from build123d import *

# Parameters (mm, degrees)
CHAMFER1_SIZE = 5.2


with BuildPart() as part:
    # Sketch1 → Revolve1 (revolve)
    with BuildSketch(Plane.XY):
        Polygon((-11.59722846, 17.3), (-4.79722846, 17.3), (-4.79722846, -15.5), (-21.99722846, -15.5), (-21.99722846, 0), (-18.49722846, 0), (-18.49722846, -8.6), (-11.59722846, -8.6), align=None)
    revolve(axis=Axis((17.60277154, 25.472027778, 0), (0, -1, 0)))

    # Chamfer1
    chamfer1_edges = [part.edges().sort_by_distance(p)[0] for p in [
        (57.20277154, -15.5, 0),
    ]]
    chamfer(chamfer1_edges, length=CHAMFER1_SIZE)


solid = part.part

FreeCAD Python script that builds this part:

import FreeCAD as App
import Part
import Sketcher
from FreeCAD import Vector


def edges_at(feature, points):
    """Names of the edges that pass closest to the given points."""
    edges = feature.Shape.Edges
    near = lambda p: min(range(len(edges)), key=lambda i: edges[i].distToShape(Part.Vertex(*p))[0])
    return sorted({f"Edge{near(p) + 1}" for p in points})

doc = App.newDocument("Part")
body = doc.addObject("PartDesign::Body", "Body")

sketch1 = body.newObject("Sketcher::SketchObject", "Sketch")
sketch1.AttachmentSupport = (doc.getObject("XY_Plane"), [""])
sketch1.MapMode = "FlatFace"
sketch1.addGeometry([
    Part.LineSegment(Vector(-4.8, 17.3, 0), Vector(-11.6, 17.3, 0)),
    Part.LineSegment(Vector(-11.6, 17.3, 0), Vector(-11.6, -8.6, 0)),
    Part.LineSegment(Vector(-11.6, -8.6, 0), Vector(-18.5, -8.6, 0)),
    Part.LineSegment(Vector(-18.5, -8.6, 0), Vector(-18.5, 0, 0)),
    Part.LineSegment(Vector(-18.5, 0, 0), Vector(-22, 0, 0)),
    Part.LineSegment(Vector(-22, 0, 0), Vector(-22, -15.5, 0)),
    Part.LineSegment(Vector(-22, -15.5, 0), Vector(-4.8, -15.5, 0)),
    Part.LineSegment(Vector(-4.8, -15.5, 0), Vector(-4.8, 17.3, 0)),
], False)
sketch1.addGeometry(Part.LineSegment(Vector(17.6, 17.3, 0), Vector(17.6, -15.5, 0)), True)
sketch1.addConstraint([
    Sketcher.Constraint("Coincident", 0, 2, 1, 1),
    Sketcher.Constraint("Coincident", 1, 2, 2, 1),
    Sketcher.Constraint("Coincident", 2, 2, 3, 1),
    Sketcher.Constraint("Coincident", 3, 2, 4, 1),
    Sketcher.Constraint("Coincident", 4, 2, 5, 1),
    Sketcher.Constraint("Coincident", 5, 2, 6, 1),
    Sketcher.Constraint("Coincident", 6, 2, 7, 1),
    Sketcher.Constraint("Coincident", 7, 2, 0, 1),
    Sketcher.Constraint("Horizontal", 0),
    Sketcher.Constraint("Vertical", 1),
    Sketcher.Constraint("Horizontal", 2),
    Sketcher.Constraint("Vertical", 3),
    Sketcher.Constraint("Horizontal", 4),
    Sketcher.Constraint("Vertical", 5),
    Sketcher.Constraint("Horizontal", 6),
    Sketcher.Constraint("Vertical", 7),
    Sketcher.Constraint("Vertical", 8),
    Sketcher.Constraint("PointOnObject", 3, 2, -1),
    Sketcher.Constraint("Horizontal", 7, 2, 8, 1),
    Sketcher.Constraint("Horizontal", 6, 2, 8, 2),
    Sketcher.Constraint("DistanceX", 0, 2, 0, 1, 6.8),
    Sketcher.Constraint("DistanceX", 2, 2, 2, 1, 6.9),
    Sketcher.Constraint("DistanceX", 4, 2, 4, 1, 3.5),
    Sketcher.Constraint("DistanceY", 1, 2, 1, 1, 25.9),
    Sketcher.Constraint("DistanceY", 3, 1, 3, 2, 8.6),
    Sketcher.Constraint("DistanceY", 5, 2, 5, 1, 15.5),
    Sketcher.Constraint("DistanceX", 7, 2, 8, 1, 22.4),
    Sketcher.Constraint("DistanceX", 0, 2, -1, 1, 11.597228),
])
revolution = body.newObject("PartDesign::Revolution", "Revolution")
revolution.Profile = sketch1
revolution.ReferenceAxis = (sketch1, ["Axis0"])
revolution.Angle = 360
doc.recompute()

chamfer = body.newObject("PartDesign::Chamfer", "Chamfer")
chamfer.Base = (revolution, edges_at(revolution, [(57.203, -15.5, 0)]))
chamfer.Size = 5.2

doc.recompute()
